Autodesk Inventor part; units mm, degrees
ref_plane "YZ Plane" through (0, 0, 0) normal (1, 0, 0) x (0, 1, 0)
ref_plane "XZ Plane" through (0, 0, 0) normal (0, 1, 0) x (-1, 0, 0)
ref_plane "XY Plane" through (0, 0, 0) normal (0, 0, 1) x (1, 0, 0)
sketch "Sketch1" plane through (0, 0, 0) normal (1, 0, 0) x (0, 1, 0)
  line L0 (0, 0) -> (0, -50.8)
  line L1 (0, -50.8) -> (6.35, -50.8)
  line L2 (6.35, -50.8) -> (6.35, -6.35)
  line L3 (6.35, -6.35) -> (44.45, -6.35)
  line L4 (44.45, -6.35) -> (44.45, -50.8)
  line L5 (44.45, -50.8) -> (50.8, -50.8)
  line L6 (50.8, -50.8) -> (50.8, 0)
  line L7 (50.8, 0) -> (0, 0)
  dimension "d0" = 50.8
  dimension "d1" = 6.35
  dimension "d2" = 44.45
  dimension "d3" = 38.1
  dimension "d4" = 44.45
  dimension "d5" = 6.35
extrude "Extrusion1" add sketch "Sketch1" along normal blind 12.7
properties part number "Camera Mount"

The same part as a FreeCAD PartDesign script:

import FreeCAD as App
import Part
import Sketcher
from FreeCAD import Vector
Q = App.Units.Quantity


def add_polygon(sketch, points):
    """Adds a closed chain of lines whose ends are joined by coincident constraints."""
    first, n = sketch.GeometryCount, len(points)
    for a, b in zip(points, points[1:] + points[:1]):
        sketch.addGeometry(Part.LineSegment(App.Vector(*a, 0), App.Vector(*b, 0)), False)
    for i in range(n):
        sketch.addConstraint(Sketcher.Constraint("Coincident", first + i, 2, first + (i + 1) % n, 1))

doc = App.newDocument("Part")
params = doc.addObject("Spreadsheet::Sheet", "Params")
for row, (alias, value) in enumerate([
    ("sketch1_width", "2 in"),
    ("sketch1_width2", "1.5 in"),
    ("sketch1_height", "1.75 in"),
    ("pad1_length", "0.5 in"),
], start=1):
    params.set(f"A{row}", alias)
    params.set(f"B{row}", "=" + value)
    params.setAlias(f"B{row}", alias)

body = doc.addObject("PartDesign::Body", "Body")

# Sketch on YZ plane
sketch1 = doc.addObject("Sketcher::SketchObject", "Sketch")
body.addObject(sketch1)
sketch1.AttachmentSupport = (doc.YZ_Plane, [""])
sketch1.MapMode = "FlatFace"
add_polygon(sketch1, [(51, 0), (0, 0), (0, -51), (6, -51), (6, -6), (44, -6), (44, -51), (51, -51)])  # lines 0-7
sketch1.addConstraint([
    Sketcher.Constraint("Horizontal", 0),
    Sketcher.Constraint("Vertical", 1),
    Sketcher.Constraint("Horizontal", 2),
    Sketcher.Constraint("Vertical", 3),
    Sketcher.Constraint("Horizontal", 4),
    Sketcher.Constraint("Vertical", 5),
    Sketcher.Constraint("Horizontal", 6),
    Sketcher.Constraint("Vertical", 7),
    Sketcher.Constraint("Coincident", 0, 2, -1, 1),
    Sketcher.Constraint("Horizontal", 2, 2, 5, 2),
    Sketcher.Constraint("Equal", 2, 6),
    Sketcher.Constraint("Equal", 0, 1),
    Sketcher.Constraint("DistanceX", 0, 2, 0, 1, Q("2 in")),
    Sketcher.Constraint("DistanceX", 4, 1, 4, 2, Q("1.5 in")),
    Sketcher.Constraint("DistanceY", 3, 1, 3, 2, Q("1.75 in")),
])
sketch1.setExpression("Constraints[20]", "Params.sketch1_width")
sketch1.setExpression("Constraints[21]", "Params.sketch1_width2")
sketch1.setExpression("Constraints[22]", "Params.sketch1_height")
pad1 = doc.addObject("PartDesign::Pad", "Pad")
body.addObject(pad1)
pad1.Profile = sketch1
pad1.setExpression("Length", "Params.pad1_length")

doc.recompute()
